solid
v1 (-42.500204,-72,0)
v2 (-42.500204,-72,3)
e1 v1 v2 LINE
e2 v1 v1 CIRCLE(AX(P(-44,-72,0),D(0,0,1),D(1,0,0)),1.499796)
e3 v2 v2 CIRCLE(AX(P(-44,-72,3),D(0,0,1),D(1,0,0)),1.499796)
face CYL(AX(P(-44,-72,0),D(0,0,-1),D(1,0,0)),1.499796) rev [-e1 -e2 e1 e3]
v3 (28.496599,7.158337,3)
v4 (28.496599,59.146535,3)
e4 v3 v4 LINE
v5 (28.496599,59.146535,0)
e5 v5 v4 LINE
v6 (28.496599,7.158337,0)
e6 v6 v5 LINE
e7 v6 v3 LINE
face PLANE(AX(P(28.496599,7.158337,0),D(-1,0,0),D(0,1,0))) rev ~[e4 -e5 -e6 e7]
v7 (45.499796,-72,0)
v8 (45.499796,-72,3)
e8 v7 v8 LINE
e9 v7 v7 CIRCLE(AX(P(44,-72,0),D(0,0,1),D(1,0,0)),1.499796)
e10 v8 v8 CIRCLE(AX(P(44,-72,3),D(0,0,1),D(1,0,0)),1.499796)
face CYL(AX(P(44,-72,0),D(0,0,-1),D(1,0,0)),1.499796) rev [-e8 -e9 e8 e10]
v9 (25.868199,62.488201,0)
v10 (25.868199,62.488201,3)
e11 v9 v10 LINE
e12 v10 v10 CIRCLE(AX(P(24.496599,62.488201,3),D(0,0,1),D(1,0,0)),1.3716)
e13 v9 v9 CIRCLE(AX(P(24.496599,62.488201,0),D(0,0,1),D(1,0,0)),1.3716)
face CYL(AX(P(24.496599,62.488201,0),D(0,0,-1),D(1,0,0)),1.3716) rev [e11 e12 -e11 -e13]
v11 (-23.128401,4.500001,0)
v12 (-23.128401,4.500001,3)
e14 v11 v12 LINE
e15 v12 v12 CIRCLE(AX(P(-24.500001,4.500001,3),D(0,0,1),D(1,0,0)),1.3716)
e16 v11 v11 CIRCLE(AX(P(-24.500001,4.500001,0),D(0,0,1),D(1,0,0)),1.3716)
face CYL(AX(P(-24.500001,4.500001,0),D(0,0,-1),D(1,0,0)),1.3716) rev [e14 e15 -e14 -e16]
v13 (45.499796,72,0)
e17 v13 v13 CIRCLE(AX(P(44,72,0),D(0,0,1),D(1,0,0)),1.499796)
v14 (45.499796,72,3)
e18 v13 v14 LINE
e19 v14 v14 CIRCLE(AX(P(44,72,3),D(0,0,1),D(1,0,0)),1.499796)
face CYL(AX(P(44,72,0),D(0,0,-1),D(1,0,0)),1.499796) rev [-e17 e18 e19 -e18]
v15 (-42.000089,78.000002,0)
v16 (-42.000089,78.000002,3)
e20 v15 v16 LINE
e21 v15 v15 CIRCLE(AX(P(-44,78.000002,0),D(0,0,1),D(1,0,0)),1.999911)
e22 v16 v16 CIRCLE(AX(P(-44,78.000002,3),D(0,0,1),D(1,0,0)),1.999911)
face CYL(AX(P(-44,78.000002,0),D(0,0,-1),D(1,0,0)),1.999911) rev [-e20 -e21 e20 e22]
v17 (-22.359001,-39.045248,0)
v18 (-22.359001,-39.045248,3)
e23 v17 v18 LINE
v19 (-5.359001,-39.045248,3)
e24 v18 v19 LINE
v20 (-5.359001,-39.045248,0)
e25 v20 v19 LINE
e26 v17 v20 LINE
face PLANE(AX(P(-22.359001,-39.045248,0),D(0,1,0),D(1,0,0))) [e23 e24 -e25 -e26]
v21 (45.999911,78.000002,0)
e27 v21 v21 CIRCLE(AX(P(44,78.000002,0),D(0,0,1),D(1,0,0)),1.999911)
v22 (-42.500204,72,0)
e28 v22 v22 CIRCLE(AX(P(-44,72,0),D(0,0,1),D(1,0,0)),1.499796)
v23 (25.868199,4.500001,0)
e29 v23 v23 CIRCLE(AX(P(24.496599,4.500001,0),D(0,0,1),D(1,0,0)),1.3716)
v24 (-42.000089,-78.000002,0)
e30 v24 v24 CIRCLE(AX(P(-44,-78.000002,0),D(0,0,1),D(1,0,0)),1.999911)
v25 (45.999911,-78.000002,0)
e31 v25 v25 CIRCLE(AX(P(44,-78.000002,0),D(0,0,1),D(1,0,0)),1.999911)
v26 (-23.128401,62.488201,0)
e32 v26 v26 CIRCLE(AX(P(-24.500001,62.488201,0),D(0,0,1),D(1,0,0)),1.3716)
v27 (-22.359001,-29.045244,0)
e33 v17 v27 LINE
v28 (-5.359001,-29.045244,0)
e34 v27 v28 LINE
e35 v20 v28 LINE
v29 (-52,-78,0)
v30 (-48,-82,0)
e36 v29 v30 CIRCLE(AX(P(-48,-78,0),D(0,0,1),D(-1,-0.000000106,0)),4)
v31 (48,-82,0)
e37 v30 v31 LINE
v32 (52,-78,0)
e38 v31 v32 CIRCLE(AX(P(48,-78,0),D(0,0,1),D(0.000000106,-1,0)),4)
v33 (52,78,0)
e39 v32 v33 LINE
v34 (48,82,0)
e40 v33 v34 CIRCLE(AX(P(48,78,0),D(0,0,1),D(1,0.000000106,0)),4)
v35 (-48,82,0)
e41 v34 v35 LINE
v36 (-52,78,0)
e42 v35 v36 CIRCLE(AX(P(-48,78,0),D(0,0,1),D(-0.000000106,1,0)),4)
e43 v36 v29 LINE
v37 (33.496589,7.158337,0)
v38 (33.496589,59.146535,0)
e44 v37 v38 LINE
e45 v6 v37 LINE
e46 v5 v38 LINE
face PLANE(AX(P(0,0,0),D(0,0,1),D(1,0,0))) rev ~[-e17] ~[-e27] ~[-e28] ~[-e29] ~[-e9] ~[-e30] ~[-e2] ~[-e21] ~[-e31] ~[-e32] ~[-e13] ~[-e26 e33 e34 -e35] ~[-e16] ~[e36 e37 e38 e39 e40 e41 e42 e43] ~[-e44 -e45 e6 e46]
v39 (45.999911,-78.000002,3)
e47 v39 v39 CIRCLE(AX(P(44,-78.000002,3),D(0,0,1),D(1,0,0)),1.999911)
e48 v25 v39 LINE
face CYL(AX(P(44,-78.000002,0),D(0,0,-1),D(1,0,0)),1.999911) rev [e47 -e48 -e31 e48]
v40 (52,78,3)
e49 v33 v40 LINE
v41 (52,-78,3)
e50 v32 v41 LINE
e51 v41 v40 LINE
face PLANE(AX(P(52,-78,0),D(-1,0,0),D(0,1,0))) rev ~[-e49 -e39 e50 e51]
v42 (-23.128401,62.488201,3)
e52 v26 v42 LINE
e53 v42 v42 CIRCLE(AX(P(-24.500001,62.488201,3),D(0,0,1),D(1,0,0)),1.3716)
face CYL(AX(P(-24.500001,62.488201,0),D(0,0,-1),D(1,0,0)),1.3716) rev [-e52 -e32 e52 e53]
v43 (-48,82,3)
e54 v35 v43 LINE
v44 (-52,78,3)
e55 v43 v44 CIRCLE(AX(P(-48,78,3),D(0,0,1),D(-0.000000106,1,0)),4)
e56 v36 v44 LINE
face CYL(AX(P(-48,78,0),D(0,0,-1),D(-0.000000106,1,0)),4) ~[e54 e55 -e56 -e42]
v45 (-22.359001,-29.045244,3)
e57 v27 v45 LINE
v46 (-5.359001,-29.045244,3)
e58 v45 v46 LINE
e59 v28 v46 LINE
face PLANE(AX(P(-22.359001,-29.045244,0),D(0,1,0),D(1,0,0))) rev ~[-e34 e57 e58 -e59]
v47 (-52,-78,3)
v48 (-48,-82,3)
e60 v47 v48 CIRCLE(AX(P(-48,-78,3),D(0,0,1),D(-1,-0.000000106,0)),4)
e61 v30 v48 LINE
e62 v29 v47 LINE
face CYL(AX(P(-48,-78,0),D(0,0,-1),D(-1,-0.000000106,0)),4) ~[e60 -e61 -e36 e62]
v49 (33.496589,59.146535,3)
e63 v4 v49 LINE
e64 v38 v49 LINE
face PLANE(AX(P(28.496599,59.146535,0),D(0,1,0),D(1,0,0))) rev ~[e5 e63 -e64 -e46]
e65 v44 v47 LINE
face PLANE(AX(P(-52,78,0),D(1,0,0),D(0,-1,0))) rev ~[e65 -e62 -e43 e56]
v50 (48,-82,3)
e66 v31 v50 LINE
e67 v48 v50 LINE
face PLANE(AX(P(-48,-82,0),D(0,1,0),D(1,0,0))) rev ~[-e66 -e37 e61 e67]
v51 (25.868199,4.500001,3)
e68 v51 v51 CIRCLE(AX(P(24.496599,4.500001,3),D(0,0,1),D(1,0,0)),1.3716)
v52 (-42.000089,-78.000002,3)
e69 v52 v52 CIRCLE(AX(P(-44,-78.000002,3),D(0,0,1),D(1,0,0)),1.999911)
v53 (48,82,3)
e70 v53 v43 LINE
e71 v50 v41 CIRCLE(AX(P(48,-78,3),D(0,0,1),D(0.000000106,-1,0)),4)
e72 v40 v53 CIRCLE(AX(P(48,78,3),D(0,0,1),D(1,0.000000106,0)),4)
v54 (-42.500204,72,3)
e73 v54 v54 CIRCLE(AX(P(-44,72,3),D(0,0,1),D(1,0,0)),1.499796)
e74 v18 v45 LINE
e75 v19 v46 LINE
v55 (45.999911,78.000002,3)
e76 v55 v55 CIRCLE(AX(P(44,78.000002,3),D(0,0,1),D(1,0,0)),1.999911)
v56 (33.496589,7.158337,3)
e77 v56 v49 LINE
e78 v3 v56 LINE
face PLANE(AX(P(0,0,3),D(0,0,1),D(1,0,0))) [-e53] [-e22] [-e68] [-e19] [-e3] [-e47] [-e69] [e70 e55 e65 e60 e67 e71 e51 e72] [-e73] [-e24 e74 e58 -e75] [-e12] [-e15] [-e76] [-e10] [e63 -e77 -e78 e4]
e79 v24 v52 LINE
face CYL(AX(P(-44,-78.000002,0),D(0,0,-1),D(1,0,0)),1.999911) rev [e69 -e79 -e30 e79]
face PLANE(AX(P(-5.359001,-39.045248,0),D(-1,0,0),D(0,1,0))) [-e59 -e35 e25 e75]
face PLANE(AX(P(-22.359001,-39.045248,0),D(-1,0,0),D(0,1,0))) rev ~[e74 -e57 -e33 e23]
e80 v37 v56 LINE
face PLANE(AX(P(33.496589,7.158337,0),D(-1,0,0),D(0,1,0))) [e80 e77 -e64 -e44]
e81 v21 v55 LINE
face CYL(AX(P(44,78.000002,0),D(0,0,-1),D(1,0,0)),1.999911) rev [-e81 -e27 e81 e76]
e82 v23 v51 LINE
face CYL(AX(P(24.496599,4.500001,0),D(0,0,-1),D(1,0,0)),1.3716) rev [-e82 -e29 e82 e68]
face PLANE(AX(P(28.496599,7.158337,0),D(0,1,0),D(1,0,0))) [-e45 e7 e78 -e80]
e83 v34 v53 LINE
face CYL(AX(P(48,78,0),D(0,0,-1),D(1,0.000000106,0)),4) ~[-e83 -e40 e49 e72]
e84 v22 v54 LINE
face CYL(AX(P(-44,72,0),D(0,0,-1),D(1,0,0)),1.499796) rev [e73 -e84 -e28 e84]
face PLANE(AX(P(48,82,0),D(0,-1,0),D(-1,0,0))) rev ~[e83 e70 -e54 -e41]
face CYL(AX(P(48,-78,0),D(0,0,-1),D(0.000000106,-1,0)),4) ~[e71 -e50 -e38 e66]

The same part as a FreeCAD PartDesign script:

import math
import FreeCAD as App
import Part
import Sketcher


def add_polygon(sketch, points):
    """Adds a closed chain of lines whose ends are joined by coincident constraints."""
    first, n = sketch.GeometryCount, len(points)
    for a, b in zip(points, points[1:] + points[:1]):
        sketch.addGeometry(Part.LineSegment(App.Vector(*a, 0), App.Vector(*b, 0)), False)
    for i in range(n):
        sketch.addConstraint(Sketcher.Constraint("Coincident", first + i, 2, first + (i + 1) % n, 1))

doc = App.newDocument("Part")
body = doc.addObject("PartDesign::Body", "Body")

# Sketch on XY plane
sketch1 = body.newObject("Sketcher::SketchObject", "Sketch")
sketch1.AttachmentSupport = (doc.getObject("XY_Plane"), [""])
sketch1.MapMode = "FlatFace"
sketch1.addGeometry(Part.LineSegment(App.Vector(-48, -82, 0), App.Vector(48, -82, 0)), False)  # 0
sketch1.addGeometry(Part.ArcOfCircle(Part.Circle(App.Vector(48, -78, 0), App.Vector(0, 0, 1), 4), math.radians(-90), math.radians(0)), False)  # 1
sketch1.addGeometry(Part.LineSegment(App.Vector(52, -78, 0), App.Vector(52, 78, 0)), False)  # 2
sketch1.addGeometry(Part.ArcOfCircle(Part.Circle(App.Vector(48, 78, 0), App.Vector(0, 0, 1), 4), math.radians(0), math.radians(90)), False)  # 3
sketch1.addGeometry(Part.LineSegment(App.Vector(48, 82, 0), App.Vector(-48, 82, 0)), False)  # 4
sketch1.addGeometry(Part.ArcOfCircle(Part.Circle(App.Vector(-48, 78, 0), App.Vector(0, 0, 1), 4), math.radians(90), math.radians(180)), False)  # 5
sketch1.addGeometry(Part.LineSegment(App.Vector(-52, 78, 0), App.Vector(-52, -78, 0)), False)  # 6
sketch1.addGeometry(Part.ArcOfCircle(Part.Circle(App.Vector(-48, -78, 0), App.Vector(0, 0, 1), 4), math.radians(-180), math.radians(-90)), False)  # 7
sketch1.addGeometry(Part.Circle(App.Vector(-44, -78, 0), App.Vector(0, 0, 1), 2), False)  # 8
sketch1.addGeometry(Part.Circle(App.Vector(-44, -72, 0), App.Vector(0, 0, 1), 1.5), False)  # 9
add_polygon(sketch1, [(-5.4, -39), (-22.4, -39), (-22.4, -29), (-5.4, -29)])  # lines 10-13
sketch1.addGeometry(Part.Circle(App.Vector(44, -78, 0), App.Vector(0, 0, 1), 2), False)  # 14
sketch1.addGeometry(Part.Circle(App.Vector(44, -72, 0), App.Vector(0, 0, 1), 1.5), False)  # 15
sketch1.addGeometry(Part.Circle(App.Vector(-24.5, 4.5, 0), App.Vector(0, 0, 1), 1.4), False)  # 16
sketch1.addGeometry(Part.Circle(App.Vector(-44, 72, 0), App.Vector(0, 0, 1), 1.5), False)  # 17
sketch1.addGeometry(Part.Circle(App.Vector(-44, 78, 0), App.Vector(0, 0, 1), 2), False)  # 18
sketch1.addGeometry(Part.Circle(App.Vector(-24.5, 62.5, 0), App.Vector(0, 0, 1), 1.4), False)  # 19
sketch1.addGeometry(Part.Circle(App.Vector(24.5, 4.5, 0), App.Vector(0, 0, 1), 1.4), False)  # 20
add_polygon(sketch1, [(33.5, 7.2), (28.5, 7.2), (28.5, 59.1), (33.5, 59.1)])  # lines 21-24
sketch1.addGeometry(Part.Circle(App.Vector(24.5, 62.5, 0), App.Vector(0, 0, 1), 1.4), False)  # 25
sketch1.addGeometry(Part.Circle(App.Vector(44, 72, 0), App.Vector(0, 0, 1), 1.5), False)  # 26
sketch1.addGeometry(Part.Circle(App.Vector(44, 78, 0), App.Vector(0, 0, 1), 2), False)  # 27
sketch1.addConstraint(Sketcher.Constraint("Tangent", 0, 2, 1, 1))
sketch1.addConstraint(Sketcher.Constraint("Tangent", 1, 2, 2, 1))
sketch1.addConstraint(Sketcher.Constraint("Tangent", 2, 2, 3, 1))
sketch1.addConstraint(Sketcher.Constraint("Tangent", 3, 2, 4, 1))
sketch1.addConstraint(Sketcher.Constraint("Tangent", 4, 2, 5, 1))
sketch1.addConstraint(Sketcher.Constraint("Tangent", 5, 2, 6, 1))
sketch1.addConstraint(Sketcher.Constraint("Tangent", 6, 2, 7, 1))
sketch1.addConstraint(Sketcher.Constraint("Tangent", 7, 2, 0, 1))
sketch1.addConstraint(Sketcher.Constraint("Horizontal", 0))
sketch1.addConstraint(Sketcher.Constraint("Vertical", 2))
sketch1.addConstraint(Sketcher.Constraint("Horizontal", 4))
sketch1.addConstraint(Sketcher.Constraint("Vertical", 6))
sketch1.addConstraint(Sketcher.Constraint("Horizontal", 10))
sketch1.addConstraint(Sketcher.Constraint("Vertical", 11))
sketch1.addConstraint(Sketcher.Constraint("Horizontal", 12))
sketch1.addConstraint(Sketcher.Constraint("Vertical", 13))
sketch1.addConstraint(Sketcher.Constraint("Horizontal", 21))
sketch1.addConstraint(Sketcher.Constraint("Vertical", 22))
sketch1.addConstraint(Sketcher.Constraint("Horizontal", 23))
sketch1.addConstraint(Sketcher.Constraint("Vertical", 24))
sketch1.addConstraint(Sketcher.Constraint("Equal", 1, 3))
sketch1.addConstraint(Sketcher.Constraint("Equal", 3, 5))
sketch1.addConstraint(Sketcher.Constraint("Equal", 5, 7))
sketch1.addConstraint(Sketcher.Constraint("Equal", 8, 14))
sketch1.addConstraint(Sketcher.Constraint("Equal", 9, 15))
sketch1.addConstraint(Sketcher.Constraint("Equal", 15, 17))
sketch1.addConstraint(Sketcher.Constraint("Equal", 14, 18))
sketch1.addConstraint(Sketcher.Constraint("Equal", 16, 19))
sketch1.addConstraint(Sketcher.Constraint("Equal", 19, 20))
sketch1.addConstraint(Sketcher.Constraint("Equal", 20, 25))
sketch1.addConstraint(Sketcher.Constraint("Equal", 17, 26))
sketch1.addConstraint(Sketcher.Constraint("Equal", 18, 27))
sketch1.addConstraint(Sketcher.Constraint("Symmetric", 1, 3, 5, 3, -1, 1))
sketch1.addConstraint(Sketcher.Constraint("Symmetric", 15, 3, 17, 3, -1, 1))
sketch1.addConstraint(Sketcher.Constraint("Symmetric", 14, 3, 18, 3, -1, 1))
sketch1.addConstraint(Sketcher.Constraint("Symmetric", 9, 3, 26, 3, -1, 1))
sketch1.addConstraint(Sketcher.Constraint("Symmetric", 8, 3, 27, 3, -1, 1))
sketch1.addConstraint(Sketcher.Constraint("Symmetric", 8, 3, 14, 3, -2))
sketch1.addConstraint(Sketcher.Constraint("Symmetric", 9, 3, 15, 3, -2))
sketch1.addConstraint(Sketcher.Constraint("Horizontal", 16, 3, 20, 3))
sketch1.addConstraint(Sketcher.Constraint("Horizontal", 19, 3, 25, 3))
sketch1.addConstraint(Sketcher.Constraint("Horizontal", 14, 3, 1, 2))
sketch1.addConstraint(Sketcher.Constraint("Vertical", 8, 3, 9, 3))
sketch1.addConstraint(Sketcher.Constraint("Vertical", 16, 3, 19, 3))
sketch1.addConstraint(Sketcher.Constraint("Vertical", 20, 3, 25, 3))
sketch1.addConstraint(Sketcher.Constraint("Radius", 1, 4.0))
sketch1.addConstraint(Sketcher.Constraint("DistanceX", 0, 1, 0, 2, 96.0))
sketch1.addConstraint(Sketcher.Constraint("DistanceX", 10, 2, 10, 1, 17.0))
sketch1.addConstraint(Sketcher.Constraint("DistanceY", 2, 1, 2, 2, 156.0))
sketch1.addConstraint(Sketcher.Constraint("DistanceX", 8, 3, -1, 1, 44.0))
sketch1.addConstraint(Sketcher.Constraint("DistanceY", 9, 3, -1, 1, 72.0))
sketch1.addConstraint(Sketcher.Constraint("DistanceX", 20, 3, 21, 2, 4.0))
sketch1.addConstraint(Sketcher.Constraint("Diameter", 16, 2.7432))
sketch1.addConstraint(Sketcher.Constraint("DistanceX", 16, 3, -1, 1, 24.500001))
sketch1.addConstraint(Sketcher.Constraint("DistanceY", -1, 1, 16, 3, 4.500001))
sketch1.addConstraint(Sketcher.Constraint("Diameter", 8, 3.999822))
sketch1.addConstraint(Sketcher.Constraint("Diameter", 9, 2.999592))
sketch1.addConstraint(Sketcher.Constraint("DistanceX", 10, 2, -1, 1, 22.359001))
sketch1.addConstraint(Sketcher.Constraint("DistanceX", 21, 2, 21, 1, 4.99999))
sketch1.addConstraint(Sketcher.Constraint("DistanceY", -1, 1, 19, 3, 62.488201))
sketch1.addConstraint(Sketcher.Constraint("DistanceX", -1, 1, 20, 3, 24.496599))
sketch1.addConstraint(Sketcher.Constraint("DistanceY", 11, 1, 11, 2, 10.000005))
sketch1.addConstraint(Sketcher.Constraint("DistanceY", 22, 1, 22, 2, 51.988198))
sketch1.addConstraint(Sketcher.Constraint("DistanceY", 10, 2, -1, 1, 39.045248))
sketch1.addConstraint(Sketcher.Constraint("DistanceY", 12, 2, 21, 2, 36.203581))
pad1 = body.newObject("PartDesign::Pad", "Pad")
pad1.Profile = sketch1
pad1.Length = 3

doc.recompute()
